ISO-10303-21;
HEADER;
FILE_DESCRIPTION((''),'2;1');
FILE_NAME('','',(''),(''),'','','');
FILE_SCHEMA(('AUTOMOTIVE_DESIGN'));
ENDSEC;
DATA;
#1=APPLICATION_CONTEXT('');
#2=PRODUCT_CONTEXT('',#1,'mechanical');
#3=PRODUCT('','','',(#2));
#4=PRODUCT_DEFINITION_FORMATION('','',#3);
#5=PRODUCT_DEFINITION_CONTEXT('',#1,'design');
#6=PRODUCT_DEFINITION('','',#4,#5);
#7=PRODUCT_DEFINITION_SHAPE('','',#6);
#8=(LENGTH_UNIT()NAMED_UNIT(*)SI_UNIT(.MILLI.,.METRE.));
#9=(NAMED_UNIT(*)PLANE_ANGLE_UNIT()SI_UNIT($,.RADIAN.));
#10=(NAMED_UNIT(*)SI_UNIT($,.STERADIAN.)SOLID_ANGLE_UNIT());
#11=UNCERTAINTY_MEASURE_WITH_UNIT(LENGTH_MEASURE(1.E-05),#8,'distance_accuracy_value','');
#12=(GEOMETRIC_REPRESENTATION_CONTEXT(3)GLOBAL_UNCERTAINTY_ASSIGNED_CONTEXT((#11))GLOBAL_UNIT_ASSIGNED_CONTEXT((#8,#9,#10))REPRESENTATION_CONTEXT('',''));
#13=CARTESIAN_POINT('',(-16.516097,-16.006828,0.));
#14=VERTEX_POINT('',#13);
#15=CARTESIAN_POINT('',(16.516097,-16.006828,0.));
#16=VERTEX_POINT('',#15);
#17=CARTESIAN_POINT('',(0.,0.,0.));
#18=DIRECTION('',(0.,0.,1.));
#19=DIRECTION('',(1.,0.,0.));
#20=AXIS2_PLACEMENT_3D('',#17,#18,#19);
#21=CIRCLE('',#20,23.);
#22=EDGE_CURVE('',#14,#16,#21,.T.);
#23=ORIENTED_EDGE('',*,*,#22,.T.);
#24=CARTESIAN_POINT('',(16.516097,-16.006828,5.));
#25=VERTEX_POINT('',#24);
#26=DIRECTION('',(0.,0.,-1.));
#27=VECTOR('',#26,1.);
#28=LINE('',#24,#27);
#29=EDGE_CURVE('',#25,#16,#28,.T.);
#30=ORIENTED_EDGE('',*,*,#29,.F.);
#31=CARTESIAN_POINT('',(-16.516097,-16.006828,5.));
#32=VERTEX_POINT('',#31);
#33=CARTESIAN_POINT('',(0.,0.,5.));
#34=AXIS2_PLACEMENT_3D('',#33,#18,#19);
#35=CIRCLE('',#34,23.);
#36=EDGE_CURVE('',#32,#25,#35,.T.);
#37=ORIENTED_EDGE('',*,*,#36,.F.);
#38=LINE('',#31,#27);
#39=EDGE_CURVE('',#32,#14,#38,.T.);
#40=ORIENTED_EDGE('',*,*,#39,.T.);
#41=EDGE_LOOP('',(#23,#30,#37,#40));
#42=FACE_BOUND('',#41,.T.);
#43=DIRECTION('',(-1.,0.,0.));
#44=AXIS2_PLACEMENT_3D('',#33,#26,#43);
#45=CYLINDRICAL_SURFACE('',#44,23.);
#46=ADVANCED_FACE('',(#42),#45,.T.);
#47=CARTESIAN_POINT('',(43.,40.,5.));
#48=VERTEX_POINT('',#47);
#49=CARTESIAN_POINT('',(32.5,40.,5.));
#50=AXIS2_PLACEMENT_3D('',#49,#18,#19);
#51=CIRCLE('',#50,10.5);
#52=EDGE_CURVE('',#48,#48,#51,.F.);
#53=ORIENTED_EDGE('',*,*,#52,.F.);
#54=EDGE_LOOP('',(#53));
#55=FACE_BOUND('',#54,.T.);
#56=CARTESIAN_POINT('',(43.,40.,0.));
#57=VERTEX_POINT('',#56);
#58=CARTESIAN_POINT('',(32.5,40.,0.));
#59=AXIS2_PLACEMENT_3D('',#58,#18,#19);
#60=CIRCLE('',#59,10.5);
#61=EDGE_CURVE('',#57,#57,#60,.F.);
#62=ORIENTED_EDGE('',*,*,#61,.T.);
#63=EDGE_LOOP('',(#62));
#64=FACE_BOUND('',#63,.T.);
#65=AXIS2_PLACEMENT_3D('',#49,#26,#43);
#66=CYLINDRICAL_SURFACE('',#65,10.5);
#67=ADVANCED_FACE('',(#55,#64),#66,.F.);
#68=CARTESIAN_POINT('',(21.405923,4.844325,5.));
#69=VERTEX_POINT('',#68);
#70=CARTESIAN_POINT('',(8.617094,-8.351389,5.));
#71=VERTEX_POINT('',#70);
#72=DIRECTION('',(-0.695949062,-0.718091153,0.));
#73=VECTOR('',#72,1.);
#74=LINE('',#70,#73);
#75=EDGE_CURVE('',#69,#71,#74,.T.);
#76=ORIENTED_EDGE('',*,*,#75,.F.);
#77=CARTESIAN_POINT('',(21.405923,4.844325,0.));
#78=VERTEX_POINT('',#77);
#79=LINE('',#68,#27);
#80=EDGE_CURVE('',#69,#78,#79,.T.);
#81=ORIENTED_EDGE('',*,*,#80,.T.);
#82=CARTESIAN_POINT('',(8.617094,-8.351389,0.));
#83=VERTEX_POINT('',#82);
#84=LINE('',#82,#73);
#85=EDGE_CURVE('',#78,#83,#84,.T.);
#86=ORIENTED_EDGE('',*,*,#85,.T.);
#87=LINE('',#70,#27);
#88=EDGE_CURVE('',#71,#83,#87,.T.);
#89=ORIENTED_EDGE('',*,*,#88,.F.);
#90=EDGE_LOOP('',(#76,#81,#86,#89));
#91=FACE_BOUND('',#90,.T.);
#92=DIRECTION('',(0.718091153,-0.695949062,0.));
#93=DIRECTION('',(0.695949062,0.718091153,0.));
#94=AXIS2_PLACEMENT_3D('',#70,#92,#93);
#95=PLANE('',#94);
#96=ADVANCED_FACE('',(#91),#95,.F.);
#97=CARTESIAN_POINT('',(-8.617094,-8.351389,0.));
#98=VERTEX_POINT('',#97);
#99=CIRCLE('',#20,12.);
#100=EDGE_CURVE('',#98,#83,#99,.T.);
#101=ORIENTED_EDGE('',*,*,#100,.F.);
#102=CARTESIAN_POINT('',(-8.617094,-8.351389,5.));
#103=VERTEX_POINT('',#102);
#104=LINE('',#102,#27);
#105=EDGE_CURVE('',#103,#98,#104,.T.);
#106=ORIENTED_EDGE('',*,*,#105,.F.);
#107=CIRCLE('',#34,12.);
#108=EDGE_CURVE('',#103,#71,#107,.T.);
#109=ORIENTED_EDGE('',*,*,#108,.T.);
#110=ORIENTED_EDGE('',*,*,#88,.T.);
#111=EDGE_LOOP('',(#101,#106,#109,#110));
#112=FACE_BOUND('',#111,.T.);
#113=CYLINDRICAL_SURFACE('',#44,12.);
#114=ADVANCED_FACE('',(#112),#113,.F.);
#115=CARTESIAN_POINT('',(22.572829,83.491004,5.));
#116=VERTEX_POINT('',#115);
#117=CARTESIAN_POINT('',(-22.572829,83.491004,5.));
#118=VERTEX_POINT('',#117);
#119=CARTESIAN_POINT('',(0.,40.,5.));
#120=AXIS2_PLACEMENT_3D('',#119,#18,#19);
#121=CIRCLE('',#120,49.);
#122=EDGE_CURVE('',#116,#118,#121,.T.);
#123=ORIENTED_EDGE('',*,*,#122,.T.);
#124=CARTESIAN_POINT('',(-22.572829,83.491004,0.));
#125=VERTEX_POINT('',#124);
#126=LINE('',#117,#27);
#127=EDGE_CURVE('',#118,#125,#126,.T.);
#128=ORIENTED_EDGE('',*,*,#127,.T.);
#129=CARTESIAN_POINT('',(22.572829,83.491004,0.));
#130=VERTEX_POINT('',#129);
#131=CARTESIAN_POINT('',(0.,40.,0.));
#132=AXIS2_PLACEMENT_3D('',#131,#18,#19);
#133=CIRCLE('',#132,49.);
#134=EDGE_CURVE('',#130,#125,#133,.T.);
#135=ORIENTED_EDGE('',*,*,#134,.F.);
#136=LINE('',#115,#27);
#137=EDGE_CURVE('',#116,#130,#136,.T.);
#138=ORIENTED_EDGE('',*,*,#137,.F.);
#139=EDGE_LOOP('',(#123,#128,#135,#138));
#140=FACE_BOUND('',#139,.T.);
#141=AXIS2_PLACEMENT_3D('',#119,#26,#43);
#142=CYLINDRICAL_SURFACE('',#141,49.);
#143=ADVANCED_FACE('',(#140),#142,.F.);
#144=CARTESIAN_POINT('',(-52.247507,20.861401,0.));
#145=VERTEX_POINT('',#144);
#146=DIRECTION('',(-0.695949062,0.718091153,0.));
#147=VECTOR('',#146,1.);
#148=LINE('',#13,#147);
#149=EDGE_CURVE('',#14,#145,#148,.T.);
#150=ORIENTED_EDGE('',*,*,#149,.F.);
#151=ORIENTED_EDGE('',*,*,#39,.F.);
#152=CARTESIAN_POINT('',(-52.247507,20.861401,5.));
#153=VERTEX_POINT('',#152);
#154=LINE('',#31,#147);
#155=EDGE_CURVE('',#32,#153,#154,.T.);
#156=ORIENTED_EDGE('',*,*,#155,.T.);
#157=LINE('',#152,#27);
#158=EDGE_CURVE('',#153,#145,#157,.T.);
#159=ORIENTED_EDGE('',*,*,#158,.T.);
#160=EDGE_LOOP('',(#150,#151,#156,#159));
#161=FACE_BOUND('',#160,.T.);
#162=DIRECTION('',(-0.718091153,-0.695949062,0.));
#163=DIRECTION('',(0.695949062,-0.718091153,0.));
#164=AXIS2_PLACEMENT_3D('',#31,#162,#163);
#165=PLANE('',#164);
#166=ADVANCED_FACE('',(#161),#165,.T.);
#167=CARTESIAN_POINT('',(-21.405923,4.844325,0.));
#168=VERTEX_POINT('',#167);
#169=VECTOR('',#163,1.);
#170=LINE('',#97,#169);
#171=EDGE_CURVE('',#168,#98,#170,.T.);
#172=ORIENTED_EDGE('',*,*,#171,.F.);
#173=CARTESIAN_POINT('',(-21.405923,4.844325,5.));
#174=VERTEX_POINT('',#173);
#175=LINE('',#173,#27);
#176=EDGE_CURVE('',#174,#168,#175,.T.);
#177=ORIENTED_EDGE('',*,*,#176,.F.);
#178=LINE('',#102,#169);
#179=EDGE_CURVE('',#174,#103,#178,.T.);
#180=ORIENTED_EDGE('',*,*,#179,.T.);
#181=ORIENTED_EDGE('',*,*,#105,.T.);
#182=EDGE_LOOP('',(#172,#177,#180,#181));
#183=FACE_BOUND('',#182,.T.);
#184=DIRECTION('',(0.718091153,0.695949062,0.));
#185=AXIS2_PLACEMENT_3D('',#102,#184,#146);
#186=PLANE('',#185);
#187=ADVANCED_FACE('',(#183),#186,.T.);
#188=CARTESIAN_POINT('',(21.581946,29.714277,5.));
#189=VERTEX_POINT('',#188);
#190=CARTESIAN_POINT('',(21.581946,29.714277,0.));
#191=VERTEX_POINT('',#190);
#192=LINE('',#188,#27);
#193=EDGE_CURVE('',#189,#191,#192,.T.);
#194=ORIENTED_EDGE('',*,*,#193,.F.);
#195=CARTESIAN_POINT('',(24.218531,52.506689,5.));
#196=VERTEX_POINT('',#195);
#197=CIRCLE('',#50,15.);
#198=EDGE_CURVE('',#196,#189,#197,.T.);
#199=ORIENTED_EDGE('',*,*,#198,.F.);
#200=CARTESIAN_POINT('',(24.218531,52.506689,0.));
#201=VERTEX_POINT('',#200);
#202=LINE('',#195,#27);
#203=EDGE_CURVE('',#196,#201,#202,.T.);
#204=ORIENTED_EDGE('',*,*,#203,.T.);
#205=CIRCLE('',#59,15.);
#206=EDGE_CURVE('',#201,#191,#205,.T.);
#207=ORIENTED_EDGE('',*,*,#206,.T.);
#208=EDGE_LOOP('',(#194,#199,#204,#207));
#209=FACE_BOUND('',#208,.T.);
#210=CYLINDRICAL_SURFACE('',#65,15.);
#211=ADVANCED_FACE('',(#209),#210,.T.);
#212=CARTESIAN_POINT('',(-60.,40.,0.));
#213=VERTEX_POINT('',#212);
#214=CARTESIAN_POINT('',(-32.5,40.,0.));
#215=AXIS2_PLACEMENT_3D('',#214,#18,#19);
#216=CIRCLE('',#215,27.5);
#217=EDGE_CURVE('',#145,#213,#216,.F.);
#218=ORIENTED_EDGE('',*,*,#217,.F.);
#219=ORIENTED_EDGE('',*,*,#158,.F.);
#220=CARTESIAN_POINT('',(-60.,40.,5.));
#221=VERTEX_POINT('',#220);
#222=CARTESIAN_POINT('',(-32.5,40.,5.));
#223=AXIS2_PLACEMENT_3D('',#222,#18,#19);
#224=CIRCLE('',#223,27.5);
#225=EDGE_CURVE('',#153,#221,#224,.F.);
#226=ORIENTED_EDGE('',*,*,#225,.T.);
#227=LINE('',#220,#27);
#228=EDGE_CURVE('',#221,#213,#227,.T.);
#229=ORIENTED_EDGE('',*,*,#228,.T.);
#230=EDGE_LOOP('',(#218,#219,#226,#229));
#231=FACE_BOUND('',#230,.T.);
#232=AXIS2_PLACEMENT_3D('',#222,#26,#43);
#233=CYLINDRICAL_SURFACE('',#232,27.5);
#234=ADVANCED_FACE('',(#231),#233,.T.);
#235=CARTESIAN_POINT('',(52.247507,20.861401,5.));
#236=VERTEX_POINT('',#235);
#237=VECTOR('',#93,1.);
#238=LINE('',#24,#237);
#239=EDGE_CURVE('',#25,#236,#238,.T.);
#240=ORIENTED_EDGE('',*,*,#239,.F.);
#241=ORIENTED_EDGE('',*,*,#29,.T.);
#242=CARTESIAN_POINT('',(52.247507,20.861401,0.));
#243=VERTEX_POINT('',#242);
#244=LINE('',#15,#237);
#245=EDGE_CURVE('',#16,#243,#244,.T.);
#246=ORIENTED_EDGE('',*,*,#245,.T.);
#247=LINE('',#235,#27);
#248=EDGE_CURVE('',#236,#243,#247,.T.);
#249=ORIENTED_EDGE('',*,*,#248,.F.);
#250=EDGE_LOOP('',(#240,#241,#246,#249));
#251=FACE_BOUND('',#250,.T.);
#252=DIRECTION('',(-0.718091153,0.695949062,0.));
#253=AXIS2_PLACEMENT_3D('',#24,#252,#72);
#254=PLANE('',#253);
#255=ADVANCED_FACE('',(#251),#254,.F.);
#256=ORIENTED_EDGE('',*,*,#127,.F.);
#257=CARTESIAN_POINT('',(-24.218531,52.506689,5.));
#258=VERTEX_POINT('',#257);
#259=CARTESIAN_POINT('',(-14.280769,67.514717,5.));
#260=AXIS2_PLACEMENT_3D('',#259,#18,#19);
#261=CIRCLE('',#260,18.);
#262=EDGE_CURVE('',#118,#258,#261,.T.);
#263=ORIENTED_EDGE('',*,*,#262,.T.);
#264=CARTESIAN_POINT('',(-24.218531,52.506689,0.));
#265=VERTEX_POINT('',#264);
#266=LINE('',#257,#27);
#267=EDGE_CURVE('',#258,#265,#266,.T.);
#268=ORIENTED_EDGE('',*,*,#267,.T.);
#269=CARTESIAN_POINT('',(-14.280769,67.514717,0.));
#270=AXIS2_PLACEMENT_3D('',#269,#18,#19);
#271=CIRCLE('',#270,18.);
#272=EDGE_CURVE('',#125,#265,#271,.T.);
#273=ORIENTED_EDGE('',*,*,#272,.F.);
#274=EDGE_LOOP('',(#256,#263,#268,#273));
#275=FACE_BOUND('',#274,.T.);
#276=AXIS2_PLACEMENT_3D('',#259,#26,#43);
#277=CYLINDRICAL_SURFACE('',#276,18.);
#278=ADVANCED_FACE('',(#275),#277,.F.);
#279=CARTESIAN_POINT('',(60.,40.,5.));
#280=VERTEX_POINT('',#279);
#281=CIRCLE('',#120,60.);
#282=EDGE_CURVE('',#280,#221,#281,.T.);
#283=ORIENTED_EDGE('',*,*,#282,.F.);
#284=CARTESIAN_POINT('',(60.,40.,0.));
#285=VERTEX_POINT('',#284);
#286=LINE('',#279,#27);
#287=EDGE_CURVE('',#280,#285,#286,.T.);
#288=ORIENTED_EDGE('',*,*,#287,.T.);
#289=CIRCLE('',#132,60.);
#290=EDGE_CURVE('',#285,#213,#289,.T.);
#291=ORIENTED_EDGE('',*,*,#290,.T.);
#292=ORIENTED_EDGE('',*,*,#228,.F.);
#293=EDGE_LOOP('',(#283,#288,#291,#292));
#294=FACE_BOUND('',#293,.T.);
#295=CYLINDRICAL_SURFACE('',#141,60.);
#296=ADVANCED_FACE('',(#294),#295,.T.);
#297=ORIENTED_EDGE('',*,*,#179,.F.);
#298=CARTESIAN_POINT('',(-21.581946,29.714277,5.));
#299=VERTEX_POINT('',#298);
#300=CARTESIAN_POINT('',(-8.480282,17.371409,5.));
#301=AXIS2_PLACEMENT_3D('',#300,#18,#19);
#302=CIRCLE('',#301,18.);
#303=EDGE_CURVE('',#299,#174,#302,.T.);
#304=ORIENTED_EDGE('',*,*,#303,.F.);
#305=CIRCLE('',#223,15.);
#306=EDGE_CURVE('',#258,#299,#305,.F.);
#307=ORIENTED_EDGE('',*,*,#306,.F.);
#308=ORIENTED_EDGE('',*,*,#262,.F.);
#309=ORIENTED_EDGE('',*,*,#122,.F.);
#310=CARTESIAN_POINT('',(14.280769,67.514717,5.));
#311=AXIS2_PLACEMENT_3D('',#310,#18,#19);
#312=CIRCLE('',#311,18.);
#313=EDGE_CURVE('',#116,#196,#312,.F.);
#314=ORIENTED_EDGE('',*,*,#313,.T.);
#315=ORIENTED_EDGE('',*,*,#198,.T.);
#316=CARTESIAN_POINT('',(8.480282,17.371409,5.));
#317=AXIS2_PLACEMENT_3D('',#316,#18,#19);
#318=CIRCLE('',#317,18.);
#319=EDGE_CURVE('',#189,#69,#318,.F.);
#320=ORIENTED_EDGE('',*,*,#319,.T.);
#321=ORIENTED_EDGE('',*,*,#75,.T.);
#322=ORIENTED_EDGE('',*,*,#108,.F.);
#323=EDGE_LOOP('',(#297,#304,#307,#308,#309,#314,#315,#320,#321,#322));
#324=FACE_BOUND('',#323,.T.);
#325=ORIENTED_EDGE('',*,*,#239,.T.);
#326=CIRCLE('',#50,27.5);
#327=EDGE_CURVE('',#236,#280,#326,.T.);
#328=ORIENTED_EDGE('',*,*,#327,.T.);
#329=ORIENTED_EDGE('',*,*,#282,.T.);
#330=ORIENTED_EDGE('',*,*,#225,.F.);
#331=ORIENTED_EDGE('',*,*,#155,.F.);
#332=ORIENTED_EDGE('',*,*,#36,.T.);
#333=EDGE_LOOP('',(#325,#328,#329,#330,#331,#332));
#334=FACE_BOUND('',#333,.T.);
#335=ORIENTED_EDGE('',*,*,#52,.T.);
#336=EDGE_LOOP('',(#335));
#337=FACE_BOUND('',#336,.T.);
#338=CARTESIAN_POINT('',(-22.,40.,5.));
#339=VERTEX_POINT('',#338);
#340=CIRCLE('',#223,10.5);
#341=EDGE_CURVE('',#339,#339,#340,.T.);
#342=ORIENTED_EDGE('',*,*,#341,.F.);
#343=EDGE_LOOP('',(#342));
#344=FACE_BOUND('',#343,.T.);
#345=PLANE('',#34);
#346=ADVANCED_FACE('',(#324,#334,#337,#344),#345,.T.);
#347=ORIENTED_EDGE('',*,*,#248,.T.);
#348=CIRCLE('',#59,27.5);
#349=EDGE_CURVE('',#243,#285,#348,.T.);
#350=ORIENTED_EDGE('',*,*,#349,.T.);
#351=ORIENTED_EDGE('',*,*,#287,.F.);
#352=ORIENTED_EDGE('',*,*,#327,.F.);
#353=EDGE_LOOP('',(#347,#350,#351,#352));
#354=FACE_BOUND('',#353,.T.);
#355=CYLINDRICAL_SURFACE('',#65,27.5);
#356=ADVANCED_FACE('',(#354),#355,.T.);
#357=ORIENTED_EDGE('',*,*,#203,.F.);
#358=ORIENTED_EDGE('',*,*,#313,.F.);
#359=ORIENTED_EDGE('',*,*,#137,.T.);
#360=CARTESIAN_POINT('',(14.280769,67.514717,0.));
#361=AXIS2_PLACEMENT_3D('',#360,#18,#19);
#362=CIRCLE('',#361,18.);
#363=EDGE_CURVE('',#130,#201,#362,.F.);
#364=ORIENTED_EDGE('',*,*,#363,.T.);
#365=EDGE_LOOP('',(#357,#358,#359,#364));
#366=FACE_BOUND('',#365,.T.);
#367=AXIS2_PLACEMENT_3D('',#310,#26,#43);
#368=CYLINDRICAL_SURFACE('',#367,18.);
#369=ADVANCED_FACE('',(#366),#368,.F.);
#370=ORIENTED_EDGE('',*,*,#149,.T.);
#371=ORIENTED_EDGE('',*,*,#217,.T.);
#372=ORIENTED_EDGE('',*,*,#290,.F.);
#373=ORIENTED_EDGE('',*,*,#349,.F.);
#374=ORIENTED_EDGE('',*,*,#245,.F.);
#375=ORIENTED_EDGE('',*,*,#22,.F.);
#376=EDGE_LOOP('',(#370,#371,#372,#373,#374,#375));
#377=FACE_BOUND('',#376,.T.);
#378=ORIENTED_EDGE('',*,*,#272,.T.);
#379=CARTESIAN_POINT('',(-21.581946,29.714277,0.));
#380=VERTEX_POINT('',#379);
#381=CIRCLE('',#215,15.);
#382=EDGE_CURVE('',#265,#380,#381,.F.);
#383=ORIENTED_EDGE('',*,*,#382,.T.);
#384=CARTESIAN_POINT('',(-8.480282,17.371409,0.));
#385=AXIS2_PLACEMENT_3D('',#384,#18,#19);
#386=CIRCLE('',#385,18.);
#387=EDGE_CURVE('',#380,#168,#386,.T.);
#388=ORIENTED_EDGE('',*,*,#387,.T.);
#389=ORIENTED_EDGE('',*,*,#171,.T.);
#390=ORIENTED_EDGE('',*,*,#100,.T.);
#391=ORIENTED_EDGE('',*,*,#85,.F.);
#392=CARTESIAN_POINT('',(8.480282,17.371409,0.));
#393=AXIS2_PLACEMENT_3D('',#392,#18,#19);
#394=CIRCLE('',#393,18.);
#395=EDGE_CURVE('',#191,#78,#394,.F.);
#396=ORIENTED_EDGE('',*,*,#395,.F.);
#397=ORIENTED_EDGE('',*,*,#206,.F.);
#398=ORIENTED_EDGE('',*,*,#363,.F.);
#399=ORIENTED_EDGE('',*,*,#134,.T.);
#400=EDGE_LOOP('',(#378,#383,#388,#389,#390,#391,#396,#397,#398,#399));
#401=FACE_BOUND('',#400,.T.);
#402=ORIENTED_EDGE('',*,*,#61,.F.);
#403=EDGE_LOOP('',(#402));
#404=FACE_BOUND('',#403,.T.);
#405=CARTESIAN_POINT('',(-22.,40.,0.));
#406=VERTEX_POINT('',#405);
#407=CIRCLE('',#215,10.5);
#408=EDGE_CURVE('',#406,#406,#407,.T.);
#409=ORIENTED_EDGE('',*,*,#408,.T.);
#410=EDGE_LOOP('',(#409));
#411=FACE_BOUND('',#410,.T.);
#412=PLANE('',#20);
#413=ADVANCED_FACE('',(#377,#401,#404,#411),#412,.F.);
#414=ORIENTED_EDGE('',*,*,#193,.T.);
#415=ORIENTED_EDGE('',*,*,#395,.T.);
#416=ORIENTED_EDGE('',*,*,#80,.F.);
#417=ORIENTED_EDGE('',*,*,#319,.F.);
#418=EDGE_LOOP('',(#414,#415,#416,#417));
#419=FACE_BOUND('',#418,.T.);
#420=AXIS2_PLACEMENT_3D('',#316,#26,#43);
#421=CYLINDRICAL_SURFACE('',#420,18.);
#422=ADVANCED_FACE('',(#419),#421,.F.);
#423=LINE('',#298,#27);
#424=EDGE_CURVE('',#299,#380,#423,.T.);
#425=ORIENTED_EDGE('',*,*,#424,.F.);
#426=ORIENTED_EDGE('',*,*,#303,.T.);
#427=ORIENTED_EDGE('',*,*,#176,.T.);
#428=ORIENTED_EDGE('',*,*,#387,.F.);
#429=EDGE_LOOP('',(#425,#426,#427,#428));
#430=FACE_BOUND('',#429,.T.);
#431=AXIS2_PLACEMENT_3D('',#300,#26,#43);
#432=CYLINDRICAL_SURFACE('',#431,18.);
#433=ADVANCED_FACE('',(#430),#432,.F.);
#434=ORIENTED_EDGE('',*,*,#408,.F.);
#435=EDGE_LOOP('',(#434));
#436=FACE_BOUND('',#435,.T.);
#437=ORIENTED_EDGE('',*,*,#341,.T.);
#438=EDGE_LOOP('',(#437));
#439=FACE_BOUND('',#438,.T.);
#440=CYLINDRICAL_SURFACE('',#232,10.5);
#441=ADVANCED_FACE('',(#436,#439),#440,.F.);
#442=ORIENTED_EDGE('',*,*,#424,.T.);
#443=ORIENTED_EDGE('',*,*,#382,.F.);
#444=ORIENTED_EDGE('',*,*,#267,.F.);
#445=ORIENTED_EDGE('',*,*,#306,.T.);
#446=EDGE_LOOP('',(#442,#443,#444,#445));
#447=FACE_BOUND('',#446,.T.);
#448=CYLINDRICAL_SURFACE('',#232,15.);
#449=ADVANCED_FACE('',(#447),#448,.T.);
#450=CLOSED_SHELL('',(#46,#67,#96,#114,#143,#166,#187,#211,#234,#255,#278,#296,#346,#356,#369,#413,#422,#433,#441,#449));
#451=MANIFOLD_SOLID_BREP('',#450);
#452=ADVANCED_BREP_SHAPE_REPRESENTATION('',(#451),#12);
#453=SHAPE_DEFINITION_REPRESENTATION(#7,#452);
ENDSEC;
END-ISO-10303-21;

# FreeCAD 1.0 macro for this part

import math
import FreeCAD as App
import Part
import Sketcher
from FreeCAD import Vector
Q = App.Units.Quantity

doc = App.newDocument("Part")
body = doc.addObject("PartDesign::Body", "Body")

# Sketch on XY plane
sketch1 = doc.addObject("Sketcher::SketchObject", "Sketch")
body.addObject(sketch1)
sketch1.AttachmentSupport = (doc.XY_Plane, [""])
sketch1.MapMode = "FlatFace"
sketch1.addGeometry([
    Part.ArcOfCircle(Part.Circle(Vector(0, 40, 0), Vector(0, 0, 1), 60), math.radians(0), math.radians(180)),  # 0
    Part.ArcOfCircle(Part.Circle(Vector(-33, 40, 0), Vector(0, 0, 1), 27), math.radians(180), math.radians(224)),  # 1
    Part.LineSegment(Vector(-52, 21, 0), Vector(-17, -16, 0)),  # 2
    Part.ArcOfCircle(Part.Circle(Vector(0, 0, 0), Vector(0, 0, 1), 23), math.radians(-136), math.radians(-44)),  # 3
    Part.LineSegment(Vector(17, -16, 0), Vector(52, 21, 0)),  # 4
    Part.ArcOfCircle(Part.Circle(Vector(33, 40, 0), Vector(0, 0, 1), 27), math.radians(-44), math.radians(0)),  # 5
    Part.Circle(Vector(-32, 40, 0), Vector(0, 0, 1), 10),  # 6
    Part.ArcOfCircle(Part.Circle(Vector(-14, 68, 0), Vector(0, 0, 1), 18), math.radians(117), math.radians(236)),  # 7
    Part.ArcOfCircle(Part.Circle(Vector(0, 40, 0), Vector(0, 0, 1), 49), math.radians(63), math.radians(117)),  # 8
    Part.ArcOfCircle(Part.Circle(Vector(14, 68, 0), Vector(0, 0, 1), 18), math.radians(-56), math.radians(63)),  # 9
    Part.ArcOfCircle(Part.Circle(Vector(32, 40, 0), Vector(0, 0, 1), 15), math.radians(124), math.radians(223)),  # 10
    Part.ArcOfCircle(Part.Circle(Vector(8, 17, 0), Vector(0, 0, 1), 18), math.radians(-44), math.radians(43)),  # 11
    Part.LineSegment(Vector(21, 5, 0), Vector(9, -8, 0)),  # 12
    Part.ArcOfCircle(Part.Circle(Vector(0, 0, 0), Vector(0, 0, 1), 12), math.radians(-136), math.radians(-44)),  # 13
    Part.LineSegment(Vector(-9, -8, 0), Vector(-21, 5, 0)),  # 14
    Part.ArcOfCircle(Part.Circle(Vector(-8, 17, 0), Vector(0, 0, 1), 18), math.radians(137), math.radians(224)),  # 15
    Part.ArcOfCircle(Part.Circle(Vector(-32, 40, 0), Vector(0, 0, 1), 15), math.radians(-43), math.radians(56)),  # 16
    Part.Circle(Vector(32, 40, 0), Vector(0, 0, 1), 10),  # 17
], False)
sketch1.addConstraint([
    Sketcher.Constraint("Tangent", 0, 2, 1, 1),
    Sketcher.Constraint("Tangent", 1, 2, 2, 1),
    Sketcher.Constraint("Tangent", 2, 2, 3, 1),
    Sketcher.Constraint("Tangent", 3, 2, 4, 1),
    Sketcher.Constraint("Tangent", 4, 2, 5, 1),
    Sketcher.Constraint("Tangent", 5, 2, 0, 1),
    Sketcher.Constraint("Tangent", 7, 1, 8, 2),
    Sketcher.Constraint("Tangent", 8, 1, 9, 2),
    Sketcher.Constraint("Tangent", 9, 1, 10, 1),
    Sketcher.Constraint("Tangent", 10, 2, 11, 2),
    Sketcher.Constraint("Tangent", 11, 1, 12, 1),
    Sketcher.Constraint("Tangent", 12, 2, 13, 2),
    Sketcher.Constraint("Tangent", 13, 1, 14, 1),
    Sketcher.Constraint("Tangent", 14, 2, 15, 2),
    Sketcher.Constraint("Tangent", 15, 1, 16, 1),
    Sketcher.Constraint("Tangent", 16, 2, 7, 2),
    Sketcher.Constraint("Coincident", 3, 3, -1, 1),
    Sketcher.Constraint("Coincident", 13, 3, -1, 1),
    Sketcher.Constraint("Coincident", 6, 3, 1, 3),
    Sketcher.Constraint("Coincident", 8, 3, 0, 3),
    Sketcher.Constraint("Coincident", 10, 3, 5, 3),
    Sketcher.Constraint("Coincident", 16, 3, 1, 3),
    Sketcher.Constraint("Coincident", 17, 3, 5, 3),
    Sketcher.Constraint("Equal", 1, 5),
    Sketcher.Constraint("Equal", 7, 9),
    Sketcher.Constraint("Equal", 9, 11),
    Sketcher.Constraint("Equal", 11, 15),
    Sketcher.Constraint("Equal", 10, 16),
    Sketcher.Constraint("Equal", 6, 17),
    Sketcher.Constraint("Symmetric", 1, 3, 5, 3, -2),
    Sketcher.Constraint("Parallel", 4, 12),
    Sketcher.Constraint("Parallel", 2, 14),
    Sketcher.Constraint("Horizontal", 0, 3, 1, 3),
    Sketcher.Constraint("Diameter", 6, Q("21 mm")),
    Sketcher.Constraint("Radius", 0, Q("60 mm")),
    Sketcher.Constraint("Radius", 3, Q("23 mm")),
    Sketcher.Constraint("Radius", 7, Q("18 mm")),
    Sketcher.Constraint("Radius", 8, Q("49 mm")),
    Sketcher.Constraint("Radius", 10, Q("15 mm")),
    Sketcher.Constraint("Radius", 13, Q("12 mm")),
    Sketcher.Constraint("Radius", 1, Q("27.5 mm")),
    Sketcher.Constraint("DistanceY", -1, 1, 0, 3, Q("40 mm")),
])
pad1 = doc.addObject("PartDesign::Pad", "Pad")
body.addObject(pad1)
pad1.Profile = sketch1
pad1.Length = 5

doc.recompute()
